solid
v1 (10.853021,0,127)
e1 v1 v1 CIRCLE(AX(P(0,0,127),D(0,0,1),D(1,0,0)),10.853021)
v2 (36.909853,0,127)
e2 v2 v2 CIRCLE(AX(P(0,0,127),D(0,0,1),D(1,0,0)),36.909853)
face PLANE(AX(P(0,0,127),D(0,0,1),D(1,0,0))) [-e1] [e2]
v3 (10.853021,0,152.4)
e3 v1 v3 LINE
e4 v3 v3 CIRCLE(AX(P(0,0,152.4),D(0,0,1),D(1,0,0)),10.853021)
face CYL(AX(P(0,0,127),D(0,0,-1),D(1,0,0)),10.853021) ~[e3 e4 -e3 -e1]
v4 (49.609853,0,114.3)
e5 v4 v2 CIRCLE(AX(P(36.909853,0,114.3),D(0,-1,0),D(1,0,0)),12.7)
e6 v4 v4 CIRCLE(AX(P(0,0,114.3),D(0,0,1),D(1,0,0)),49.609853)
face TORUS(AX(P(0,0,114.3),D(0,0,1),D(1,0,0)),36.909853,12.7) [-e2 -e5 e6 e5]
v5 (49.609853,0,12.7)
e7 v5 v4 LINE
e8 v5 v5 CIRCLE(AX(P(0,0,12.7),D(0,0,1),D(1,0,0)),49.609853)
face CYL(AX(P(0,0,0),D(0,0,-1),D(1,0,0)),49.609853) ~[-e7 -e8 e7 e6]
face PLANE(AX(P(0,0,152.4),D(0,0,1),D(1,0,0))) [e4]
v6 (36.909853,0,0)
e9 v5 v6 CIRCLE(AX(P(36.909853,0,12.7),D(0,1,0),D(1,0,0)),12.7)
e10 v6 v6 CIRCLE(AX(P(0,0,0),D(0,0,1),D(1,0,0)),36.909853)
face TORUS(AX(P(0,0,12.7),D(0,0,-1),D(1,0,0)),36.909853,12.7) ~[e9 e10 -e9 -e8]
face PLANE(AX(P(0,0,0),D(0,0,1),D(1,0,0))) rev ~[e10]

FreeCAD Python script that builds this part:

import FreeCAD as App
import Part
import Sketcher
from FreeCAD import Vector
Q = App.Units.Quantity


def edges_at(feature, points):
    """Names of the edges that pass closest to the given points."""
    edges = feature.Shape.Edges
    near = lambda p: min(range(len(edges)), key=lambda i: edges[i].distToShape(Part.Vertex(*p))[0])
    return sorted({f"Edge{near(p) + 1}" for p in points})

doc = App.newDocument("Part")
body = doc.addObject("PartDesign::Body", "Body")

# Sketch on XY plane
sketch1 = doc.addObject("Sketcher::SketchObject", "Sketch")
body.addObject(sketch1)
sketch1.AttachmentSupport = (doc.XY_Plane, [""])
sketch1.MapMode = "FlatFace"
sketch1.addGeometry(Part.Circle(Vector(0, 0, 0), Vector(0, 0, 1), 50), False)
sketch1.addConstraint(Sketcher.Constraint("Coincident", 0, 3, -1, 1))
sketch1.addConstraint(Sketcher.Constraint("Diameter", 0, Q("99.219706 mm")))
pad1 = doc.addObject("PartDesign::Pad", "Pad")
body.addObject(pad1)
pad1.Profile = sketch1
pad1.Length = Q("5 in")

# Sketch on XY plane
sketch2 = doc.addObject("Sketcher::SketchObject", "Sketch001")
body.addObject(sketch2)
sketch2.AttachmentSupport = (doc.XY_Plane, [""])
sketch2.MapMode = "FlatFace"
sketch2.AttachmentOffset = App.Placement(Vector(0, 0, 5 * 25.4), App.Rotation())
sketch2.addGeometry(Part.Circle(Vector(0, 0, 0), Vector(0, 0, 1), 11), False)
sketch2.addConstraint(Sketcher.Constraint("Coincident", 0, 3, -1, 1))
sketch2.addConstraint(Sketcher.Constraint("Diameter", 0, Q("21.706042 mm")))
pad2 = doc.addObject("PartDesign::Pad", "Pad001")
body.addObject(pad2)
pad2.Profile = sketch2
pad2.Length = Q("1 in")
doc.recompute()

fillet = doc.addObject("PartDesign::Fillet", "Fillet")
body.addObject(fillet)
fillet.Base = (pad2, edges_at(pad2, [(-49.61, 0, 127), (49.61, 0, 63.5), (-49.61, 0, 0)]))
fillet.Radius = Q("0.5 in")

doc.recompute()
